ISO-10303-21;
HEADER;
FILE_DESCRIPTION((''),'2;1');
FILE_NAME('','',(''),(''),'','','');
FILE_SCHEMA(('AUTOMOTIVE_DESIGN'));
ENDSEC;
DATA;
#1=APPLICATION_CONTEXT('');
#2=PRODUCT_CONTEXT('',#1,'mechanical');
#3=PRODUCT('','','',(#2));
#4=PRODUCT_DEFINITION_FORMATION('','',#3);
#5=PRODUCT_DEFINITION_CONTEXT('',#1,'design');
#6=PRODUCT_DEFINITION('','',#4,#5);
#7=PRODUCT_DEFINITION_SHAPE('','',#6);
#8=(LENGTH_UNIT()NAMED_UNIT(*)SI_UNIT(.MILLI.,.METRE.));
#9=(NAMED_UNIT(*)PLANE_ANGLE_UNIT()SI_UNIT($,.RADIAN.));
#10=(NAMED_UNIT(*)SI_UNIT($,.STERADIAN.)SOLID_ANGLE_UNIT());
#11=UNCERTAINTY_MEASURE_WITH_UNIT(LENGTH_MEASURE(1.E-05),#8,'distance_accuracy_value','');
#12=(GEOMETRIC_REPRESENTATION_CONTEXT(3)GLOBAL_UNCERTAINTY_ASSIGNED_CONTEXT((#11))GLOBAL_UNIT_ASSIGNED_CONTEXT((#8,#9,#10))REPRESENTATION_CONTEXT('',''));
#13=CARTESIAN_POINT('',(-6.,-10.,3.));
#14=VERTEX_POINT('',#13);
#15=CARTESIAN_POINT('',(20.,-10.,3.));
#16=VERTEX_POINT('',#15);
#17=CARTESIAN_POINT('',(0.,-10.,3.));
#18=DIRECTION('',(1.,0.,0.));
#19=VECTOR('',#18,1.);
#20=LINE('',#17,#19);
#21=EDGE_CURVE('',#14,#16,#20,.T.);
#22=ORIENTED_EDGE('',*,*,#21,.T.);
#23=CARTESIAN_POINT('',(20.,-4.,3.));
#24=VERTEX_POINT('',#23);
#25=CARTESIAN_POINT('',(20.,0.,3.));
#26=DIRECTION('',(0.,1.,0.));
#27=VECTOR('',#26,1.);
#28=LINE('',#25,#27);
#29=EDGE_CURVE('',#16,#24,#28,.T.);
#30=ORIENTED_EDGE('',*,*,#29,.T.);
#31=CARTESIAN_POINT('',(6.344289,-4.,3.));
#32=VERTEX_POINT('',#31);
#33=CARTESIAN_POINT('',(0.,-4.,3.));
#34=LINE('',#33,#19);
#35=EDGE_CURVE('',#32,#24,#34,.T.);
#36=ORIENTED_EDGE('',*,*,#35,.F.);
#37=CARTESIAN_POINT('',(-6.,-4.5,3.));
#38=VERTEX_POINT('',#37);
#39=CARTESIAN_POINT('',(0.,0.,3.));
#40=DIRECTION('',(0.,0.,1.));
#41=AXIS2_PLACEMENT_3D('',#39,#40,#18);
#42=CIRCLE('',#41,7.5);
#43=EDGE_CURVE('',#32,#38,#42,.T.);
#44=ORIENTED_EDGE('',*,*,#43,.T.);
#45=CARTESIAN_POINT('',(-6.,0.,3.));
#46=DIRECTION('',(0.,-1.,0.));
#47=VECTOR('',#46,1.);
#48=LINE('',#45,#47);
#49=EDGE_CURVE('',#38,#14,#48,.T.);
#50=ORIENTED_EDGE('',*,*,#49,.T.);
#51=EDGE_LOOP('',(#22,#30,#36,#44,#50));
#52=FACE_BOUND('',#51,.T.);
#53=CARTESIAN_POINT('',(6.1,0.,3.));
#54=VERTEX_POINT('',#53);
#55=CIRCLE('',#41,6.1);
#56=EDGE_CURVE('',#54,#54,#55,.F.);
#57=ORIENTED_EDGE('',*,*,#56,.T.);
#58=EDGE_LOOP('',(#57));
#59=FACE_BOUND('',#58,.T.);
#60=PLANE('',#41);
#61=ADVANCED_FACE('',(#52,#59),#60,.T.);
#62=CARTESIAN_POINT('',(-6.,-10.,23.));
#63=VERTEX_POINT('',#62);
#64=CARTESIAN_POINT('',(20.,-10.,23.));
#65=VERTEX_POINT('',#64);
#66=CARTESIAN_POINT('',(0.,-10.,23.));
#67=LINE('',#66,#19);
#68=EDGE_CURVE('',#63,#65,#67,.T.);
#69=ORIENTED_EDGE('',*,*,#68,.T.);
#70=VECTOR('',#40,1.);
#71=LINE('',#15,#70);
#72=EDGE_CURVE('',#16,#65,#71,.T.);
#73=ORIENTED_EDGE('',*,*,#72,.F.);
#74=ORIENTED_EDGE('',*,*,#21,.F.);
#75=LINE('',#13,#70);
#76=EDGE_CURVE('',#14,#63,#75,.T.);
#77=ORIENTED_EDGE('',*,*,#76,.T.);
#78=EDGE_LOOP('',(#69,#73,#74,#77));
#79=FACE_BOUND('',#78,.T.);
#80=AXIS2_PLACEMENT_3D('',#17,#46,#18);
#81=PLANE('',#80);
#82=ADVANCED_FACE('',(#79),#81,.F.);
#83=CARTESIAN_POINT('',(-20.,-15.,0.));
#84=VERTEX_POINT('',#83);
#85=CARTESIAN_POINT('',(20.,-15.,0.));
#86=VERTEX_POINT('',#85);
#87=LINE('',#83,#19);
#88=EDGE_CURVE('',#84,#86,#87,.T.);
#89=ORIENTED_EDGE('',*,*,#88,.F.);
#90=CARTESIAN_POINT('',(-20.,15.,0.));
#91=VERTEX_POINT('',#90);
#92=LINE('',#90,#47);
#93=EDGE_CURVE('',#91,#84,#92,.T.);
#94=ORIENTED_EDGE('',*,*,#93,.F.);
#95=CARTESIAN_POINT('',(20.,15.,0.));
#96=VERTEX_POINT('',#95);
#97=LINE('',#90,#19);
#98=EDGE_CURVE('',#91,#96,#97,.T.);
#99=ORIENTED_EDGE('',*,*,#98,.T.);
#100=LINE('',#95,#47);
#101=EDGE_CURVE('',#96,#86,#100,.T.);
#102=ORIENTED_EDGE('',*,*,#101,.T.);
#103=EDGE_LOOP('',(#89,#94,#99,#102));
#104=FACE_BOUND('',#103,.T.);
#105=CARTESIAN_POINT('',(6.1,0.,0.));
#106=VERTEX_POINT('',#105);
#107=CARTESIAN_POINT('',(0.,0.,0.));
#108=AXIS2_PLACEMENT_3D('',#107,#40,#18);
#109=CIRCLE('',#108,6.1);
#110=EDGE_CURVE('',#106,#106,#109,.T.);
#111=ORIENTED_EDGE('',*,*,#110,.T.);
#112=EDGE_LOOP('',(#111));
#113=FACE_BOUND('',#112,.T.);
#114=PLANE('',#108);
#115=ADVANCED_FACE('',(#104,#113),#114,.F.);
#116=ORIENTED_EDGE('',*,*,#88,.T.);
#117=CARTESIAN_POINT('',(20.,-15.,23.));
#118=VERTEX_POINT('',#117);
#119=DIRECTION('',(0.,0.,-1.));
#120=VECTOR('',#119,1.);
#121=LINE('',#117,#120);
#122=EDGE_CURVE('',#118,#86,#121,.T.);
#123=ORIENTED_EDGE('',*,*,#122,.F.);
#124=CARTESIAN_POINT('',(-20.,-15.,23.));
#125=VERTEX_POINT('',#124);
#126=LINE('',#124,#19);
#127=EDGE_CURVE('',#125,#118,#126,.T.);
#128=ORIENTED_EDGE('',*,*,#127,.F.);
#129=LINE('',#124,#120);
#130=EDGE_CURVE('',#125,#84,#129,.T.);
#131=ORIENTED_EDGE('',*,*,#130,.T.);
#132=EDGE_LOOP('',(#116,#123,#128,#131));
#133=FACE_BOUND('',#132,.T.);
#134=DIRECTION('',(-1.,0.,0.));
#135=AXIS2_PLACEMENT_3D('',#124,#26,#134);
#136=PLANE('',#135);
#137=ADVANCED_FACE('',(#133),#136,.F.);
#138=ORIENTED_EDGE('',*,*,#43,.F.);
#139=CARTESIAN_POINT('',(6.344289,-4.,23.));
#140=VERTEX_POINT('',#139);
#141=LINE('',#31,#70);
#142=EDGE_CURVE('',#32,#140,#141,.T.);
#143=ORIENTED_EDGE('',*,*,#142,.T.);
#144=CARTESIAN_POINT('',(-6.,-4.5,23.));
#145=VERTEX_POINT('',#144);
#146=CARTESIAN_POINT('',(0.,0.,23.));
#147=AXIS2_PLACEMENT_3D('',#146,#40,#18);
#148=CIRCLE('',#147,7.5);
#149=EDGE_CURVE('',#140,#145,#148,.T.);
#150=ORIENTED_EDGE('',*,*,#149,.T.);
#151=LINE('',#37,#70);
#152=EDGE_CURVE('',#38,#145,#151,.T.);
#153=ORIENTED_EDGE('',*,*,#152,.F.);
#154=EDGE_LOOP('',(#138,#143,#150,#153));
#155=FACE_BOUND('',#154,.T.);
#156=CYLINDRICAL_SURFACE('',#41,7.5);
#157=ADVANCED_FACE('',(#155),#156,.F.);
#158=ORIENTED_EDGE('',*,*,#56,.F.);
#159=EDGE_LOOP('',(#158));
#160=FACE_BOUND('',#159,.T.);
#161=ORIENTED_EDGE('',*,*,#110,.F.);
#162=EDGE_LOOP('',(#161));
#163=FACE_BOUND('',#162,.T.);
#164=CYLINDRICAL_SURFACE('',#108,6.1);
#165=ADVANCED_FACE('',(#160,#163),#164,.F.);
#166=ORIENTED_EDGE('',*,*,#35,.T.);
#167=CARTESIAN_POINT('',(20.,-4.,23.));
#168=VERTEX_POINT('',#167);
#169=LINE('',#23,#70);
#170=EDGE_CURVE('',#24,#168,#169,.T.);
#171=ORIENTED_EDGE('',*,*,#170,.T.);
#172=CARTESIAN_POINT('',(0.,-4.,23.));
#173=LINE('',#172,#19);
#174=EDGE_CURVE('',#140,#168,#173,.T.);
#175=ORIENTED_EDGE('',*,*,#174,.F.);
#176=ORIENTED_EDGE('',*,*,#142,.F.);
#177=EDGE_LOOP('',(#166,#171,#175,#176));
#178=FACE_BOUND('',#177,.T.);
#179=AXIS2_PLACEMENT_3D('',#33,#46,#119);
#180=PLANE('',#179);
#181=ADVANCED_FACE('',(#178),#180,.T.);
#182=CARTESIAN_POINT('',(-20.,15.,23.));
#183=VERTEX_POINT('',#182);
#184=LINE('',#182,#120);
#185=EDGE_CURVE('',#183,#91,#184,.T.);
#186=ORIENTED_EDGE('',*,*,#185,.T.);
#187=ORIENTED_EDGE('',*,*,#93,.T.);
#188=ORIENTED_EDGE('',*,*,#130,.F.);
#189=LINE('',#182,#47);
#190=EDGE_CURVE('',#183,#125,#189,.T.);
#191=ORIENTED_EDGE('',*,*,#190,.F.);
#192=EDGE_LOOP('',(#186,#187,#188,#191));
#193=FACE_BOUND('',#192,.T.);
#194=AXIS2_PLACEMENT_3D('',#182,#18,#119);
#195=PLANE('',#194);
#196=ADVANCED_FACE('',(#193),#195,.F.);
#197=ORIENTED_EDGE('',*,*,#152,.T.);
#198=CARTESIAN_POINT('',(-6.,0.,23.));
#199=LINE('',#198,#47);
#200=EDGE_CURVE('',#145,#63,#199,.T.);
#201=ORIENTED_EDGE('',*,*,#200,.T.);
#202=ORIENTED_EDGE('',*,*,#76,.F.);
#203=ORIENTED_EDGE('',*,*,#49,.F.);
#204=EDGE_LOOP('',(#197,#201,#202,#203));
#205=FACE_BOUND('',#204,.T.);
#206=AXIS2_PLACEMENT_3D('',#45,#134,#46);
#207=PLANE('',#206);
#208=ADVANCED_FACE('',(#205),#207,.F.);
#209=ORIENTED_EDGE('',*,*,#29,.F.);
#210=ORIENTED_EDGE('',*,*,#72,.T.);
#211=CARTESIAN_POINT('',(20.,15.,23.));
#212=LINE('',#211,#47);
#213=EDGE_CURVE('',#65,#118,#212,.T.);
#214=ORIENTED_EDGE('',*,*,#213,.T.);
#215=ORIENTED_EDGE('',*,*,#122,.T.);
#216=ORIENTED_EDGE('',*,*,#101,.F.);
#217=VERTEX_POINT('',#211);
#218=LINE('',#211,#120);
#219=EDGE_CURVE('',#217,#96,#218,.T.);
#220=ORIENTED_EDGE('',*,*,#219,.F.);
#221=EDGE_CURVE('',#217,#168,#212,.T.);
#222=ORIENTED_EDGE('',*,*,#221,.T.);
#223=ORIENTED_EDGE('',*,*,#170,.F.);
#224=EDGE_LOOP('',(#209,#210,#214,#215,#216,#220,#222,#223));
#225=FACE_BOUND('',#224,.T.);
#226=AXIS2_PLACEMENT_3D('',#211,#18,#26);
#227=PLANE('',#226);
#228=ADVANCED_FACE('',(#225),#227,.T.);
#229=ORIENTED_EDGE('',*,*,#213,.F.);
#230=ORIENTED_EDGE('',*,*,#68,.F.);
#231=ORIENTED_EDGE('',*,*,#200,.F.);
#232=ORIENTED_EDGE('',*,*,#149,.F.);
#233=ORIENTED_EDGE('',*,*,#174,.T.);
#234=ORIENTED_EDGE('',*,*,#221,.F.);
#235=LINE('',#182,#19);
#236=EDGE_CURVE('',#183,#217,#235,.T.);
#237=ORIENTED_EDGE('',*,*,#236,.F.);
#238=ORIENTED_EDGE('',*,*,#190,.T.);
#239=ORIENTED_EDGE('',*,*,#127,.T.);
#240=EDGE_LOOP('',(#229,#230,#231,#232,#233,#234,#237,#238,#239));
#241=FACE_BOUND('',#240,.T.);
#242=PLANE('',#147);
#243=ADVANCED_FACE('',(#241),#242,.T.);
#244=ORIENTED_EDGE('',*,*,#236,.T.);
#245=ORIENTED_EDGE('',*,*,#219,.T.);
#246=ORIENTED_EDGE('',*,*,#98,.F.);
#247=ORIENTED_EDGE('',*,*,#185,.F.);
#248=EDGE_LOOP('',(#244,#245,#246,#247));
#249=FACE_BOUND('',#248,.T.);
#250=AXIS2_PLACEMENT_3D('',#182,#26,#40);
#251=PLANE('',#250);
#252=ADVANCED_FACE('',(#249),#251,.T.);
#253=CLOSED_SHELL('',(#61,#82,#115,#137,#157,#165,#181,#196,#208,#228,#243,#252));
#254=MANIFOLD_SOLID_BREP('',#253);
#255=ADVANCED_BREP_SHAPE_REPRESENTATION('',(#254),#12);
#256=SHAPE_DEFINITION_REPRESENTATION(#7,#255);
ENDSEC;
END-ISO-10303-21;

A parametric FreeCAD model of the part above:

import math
import FreeCAD as App
import Part
import Sketcher
from FreeCAD import Vector


def add_polygon(sketch, points):
    """Adds a closed chain of lines whose ends are joined by coincident constraints."""
    first, n = sketch.GeometryCount, len(points)
    for a, b in zip(points, points[1:] + points[:1]):
        sketch.addGeometry(Part.LineSegment(App.Vector(*a, 0), App.Vector(*b, 0)), False)
    for i in range(n):
        sketch.addConstraint(Sketcher.Constraint("Coincident", first + i, 2, first + (i + 1) % n, 1))

doc = App.newDocument("Part")
body = doc.addObject("PartDesign::Body", "Body")

# Sketch on XY plane
sketch1 = doc.addObject("Sketcher::SketchObject", "Sketch")
body.addObject(sketch1)
sketch1.AttachmentSupport = (doc.XY_Plane, [""])
sketch1.MapMode = "FlatFace"
add_polygon(sketch1, [(-20, 15), (-20, -15), (20, -15), (20, 15)])  # lines 0-3
sketch1.addConstraint([
    Sketcher.Constraint("Vertical", 0),
    Sketcher.Constraint("Horizontal", 1),
    Sketcher.Constraint("Vertical", 2),
    Sketcher.Constraint("Horizontal", 3),
    Sketcher.Constraint("Symmetric", 0, 2, 2, 2, -1, 1),
    Sketcher.Constraint("DistanceX", 1, 1, 1, 2, 40.0),
    Sketcher.Constraint("DistanceY", 0, 2, 0, 1, 30.0),
])
pad1 = doc.addObject("PartDesign::Pad", "Pad")
body.addObject(pad1)
pad1.Profile = sketch1
pad1.Length = 23

# Sketch on XY plane
sketch2 = doc.addObject("Sketcher::SketchObject", "Sketch001")
body.addObject(sketch2)
sketch2.AttachmentSupport = (doc.XY_Plane, [""])
sketch2.MapMode = "FlatFace"
sketch2.AttachmentOffset = App.Placement(Vector(0, 0, 23), App.Rotation())
sketch2.addGeometry(Part.Circle(Vector(0, 0, 0), Vector(0, 0, 1), 6), False)
sketch2.addConstraint([
    Sketcher.Constraint("Coincident", 0, 3, -1, 1),
    Sketcher.Constraint("Diameter", 0, 12.2),
])
pocket1 = doc.addObject("PartDesign::Pocket", "Pocket")
body.addObject(pocket1)
pocket1.Profile = sketch2
pocket1.Type = "ThroughAll"

# Sketch on XY plane
sketch3 = doc.addObject("Sketcher::SketchObject", "Sketch002")
body.addObject(sketch3)
sketch3.AttachmentSupport = (doc.XY_Plane, [""])
sketch3.MapMode = "FlatFace"
sketch3.AttachmentOffset = App.Placement(Vector(0, 0, 23), App.Rotation())
sketch3.addGeometry([
    Part.ArcOfCircle(Part.Circle(Vector(0, 0, 0), Vector(0, 0, 1), 7.5), math.radians(-32), math.radians(0)),  # 0
    Part.ArcOfCircle(Part.Circle(Vector(0, 0, 0), Vector(0, 0, 1), 7.5), math.radians(0), math.radians(217)),  # 1
    Part.LineSegment(Vector(-6, -4.5, 0), Vector(-6, -10, 0)),  # 2
    Part.LineSegment(Vector(-6, -10, 0), Vector(20, -10, 0)),  # 3
    Part.LineSegment(Vector(20, -10, 0), Vector(20, -4, 0)),  # 4
    Part.LineSegment(Vector(20, -4, 0), Vector(6.3, -4, 0)),  # 5
    Part.ArcOfCircle(Part.Circle(Vector(0, 0, 0), Vector(0, 0, 1), 6.1), math.radians(-41), math.radians(0)),  # 6
    Part.ArcOfCircle(Part.Circle(Vector(0, 0, 0), Vector(0, 0, 1), 6.1), math.radians(-139), math.radians(-41)),  # 7
    Part.ArcOfCircle(Part.Circle(Vector(0, 0, 0), Vector(0, 0, 1), 6.1), math.radians(0), math.radians(221)),  # 8
], False)
sketch3.addConstraint([
    Sketcher.Constraint("Tangent", 0, 2, 1, 1),
    Sketcher.Constraint("Coincident", 1, 2, 2, 1),
    Sketcher.Constraint("Coincident", 2, 2, 3, 1),
    Sketcher.Constraint("Coincident", 3, 2, 4, 1),
    Sketcher.Constraint("Coincident", 4, 2, 5, 1),
    Sketcher.Constraint("Coincident", 5, 2, 0, 1),
    Sketcher.Constraint("Tangent", 6, 1, 7, 2),
    Sketcher.Constraint("Tangent", 7, 1, 8, 2),
    Sketcher.Constraint("Tangent", 8, 1, 6, 2),
    Sketcher.Constraint("Vertical", 2),
    Sketcher.Constraint("Horizontal", 3),
    Sketcher.Constraint("Vertical", 4),
    Sketcher.Constraint("Horizontal", 5),
    Sketcher.Constraint("Coincident", 0, 3, -1, 1),
    Sketcher.Constraint("Coincident", 6, 3, -1, 1),
    Sketcher.Constraint("Equal", 0, 1),
    Sketcher.Constraint("PointOnObject", 0, 2, -1),
    Sketcher.Constraint("PointOnObject", 8, 1, -1),
    Sketcher.Constraint("Horizontal", 5, 2, 6, 1),
    Sketcher.Constraint("Horizontal", 6, 1, 7, 1),
    Sketcher.Constraint("Radius", 0, 7.5),
    Sketcher.Constraint("Radius", 6, 6.1),
    Sketcher.Constraint("DistanceX", 3, 1, 3, 2, 26.0),
    Sketcher.Constraint("DistanceY", 4, 1, 4, 2, 6.0),
    Sketcher.Constraint("DistanceY", 2, 2, 2, 1, 5.5),
    Sketcher.Constraint("DistanceX", 1, 2, -1, 1, 6.0),
])
pocket2 = doc.addObject("PartDesign::Pocket", "Pocket001")
body.addObject(pocket2)
pocket2.Profile = sketch3
pocket2.Length = 20

doc.recompute()
